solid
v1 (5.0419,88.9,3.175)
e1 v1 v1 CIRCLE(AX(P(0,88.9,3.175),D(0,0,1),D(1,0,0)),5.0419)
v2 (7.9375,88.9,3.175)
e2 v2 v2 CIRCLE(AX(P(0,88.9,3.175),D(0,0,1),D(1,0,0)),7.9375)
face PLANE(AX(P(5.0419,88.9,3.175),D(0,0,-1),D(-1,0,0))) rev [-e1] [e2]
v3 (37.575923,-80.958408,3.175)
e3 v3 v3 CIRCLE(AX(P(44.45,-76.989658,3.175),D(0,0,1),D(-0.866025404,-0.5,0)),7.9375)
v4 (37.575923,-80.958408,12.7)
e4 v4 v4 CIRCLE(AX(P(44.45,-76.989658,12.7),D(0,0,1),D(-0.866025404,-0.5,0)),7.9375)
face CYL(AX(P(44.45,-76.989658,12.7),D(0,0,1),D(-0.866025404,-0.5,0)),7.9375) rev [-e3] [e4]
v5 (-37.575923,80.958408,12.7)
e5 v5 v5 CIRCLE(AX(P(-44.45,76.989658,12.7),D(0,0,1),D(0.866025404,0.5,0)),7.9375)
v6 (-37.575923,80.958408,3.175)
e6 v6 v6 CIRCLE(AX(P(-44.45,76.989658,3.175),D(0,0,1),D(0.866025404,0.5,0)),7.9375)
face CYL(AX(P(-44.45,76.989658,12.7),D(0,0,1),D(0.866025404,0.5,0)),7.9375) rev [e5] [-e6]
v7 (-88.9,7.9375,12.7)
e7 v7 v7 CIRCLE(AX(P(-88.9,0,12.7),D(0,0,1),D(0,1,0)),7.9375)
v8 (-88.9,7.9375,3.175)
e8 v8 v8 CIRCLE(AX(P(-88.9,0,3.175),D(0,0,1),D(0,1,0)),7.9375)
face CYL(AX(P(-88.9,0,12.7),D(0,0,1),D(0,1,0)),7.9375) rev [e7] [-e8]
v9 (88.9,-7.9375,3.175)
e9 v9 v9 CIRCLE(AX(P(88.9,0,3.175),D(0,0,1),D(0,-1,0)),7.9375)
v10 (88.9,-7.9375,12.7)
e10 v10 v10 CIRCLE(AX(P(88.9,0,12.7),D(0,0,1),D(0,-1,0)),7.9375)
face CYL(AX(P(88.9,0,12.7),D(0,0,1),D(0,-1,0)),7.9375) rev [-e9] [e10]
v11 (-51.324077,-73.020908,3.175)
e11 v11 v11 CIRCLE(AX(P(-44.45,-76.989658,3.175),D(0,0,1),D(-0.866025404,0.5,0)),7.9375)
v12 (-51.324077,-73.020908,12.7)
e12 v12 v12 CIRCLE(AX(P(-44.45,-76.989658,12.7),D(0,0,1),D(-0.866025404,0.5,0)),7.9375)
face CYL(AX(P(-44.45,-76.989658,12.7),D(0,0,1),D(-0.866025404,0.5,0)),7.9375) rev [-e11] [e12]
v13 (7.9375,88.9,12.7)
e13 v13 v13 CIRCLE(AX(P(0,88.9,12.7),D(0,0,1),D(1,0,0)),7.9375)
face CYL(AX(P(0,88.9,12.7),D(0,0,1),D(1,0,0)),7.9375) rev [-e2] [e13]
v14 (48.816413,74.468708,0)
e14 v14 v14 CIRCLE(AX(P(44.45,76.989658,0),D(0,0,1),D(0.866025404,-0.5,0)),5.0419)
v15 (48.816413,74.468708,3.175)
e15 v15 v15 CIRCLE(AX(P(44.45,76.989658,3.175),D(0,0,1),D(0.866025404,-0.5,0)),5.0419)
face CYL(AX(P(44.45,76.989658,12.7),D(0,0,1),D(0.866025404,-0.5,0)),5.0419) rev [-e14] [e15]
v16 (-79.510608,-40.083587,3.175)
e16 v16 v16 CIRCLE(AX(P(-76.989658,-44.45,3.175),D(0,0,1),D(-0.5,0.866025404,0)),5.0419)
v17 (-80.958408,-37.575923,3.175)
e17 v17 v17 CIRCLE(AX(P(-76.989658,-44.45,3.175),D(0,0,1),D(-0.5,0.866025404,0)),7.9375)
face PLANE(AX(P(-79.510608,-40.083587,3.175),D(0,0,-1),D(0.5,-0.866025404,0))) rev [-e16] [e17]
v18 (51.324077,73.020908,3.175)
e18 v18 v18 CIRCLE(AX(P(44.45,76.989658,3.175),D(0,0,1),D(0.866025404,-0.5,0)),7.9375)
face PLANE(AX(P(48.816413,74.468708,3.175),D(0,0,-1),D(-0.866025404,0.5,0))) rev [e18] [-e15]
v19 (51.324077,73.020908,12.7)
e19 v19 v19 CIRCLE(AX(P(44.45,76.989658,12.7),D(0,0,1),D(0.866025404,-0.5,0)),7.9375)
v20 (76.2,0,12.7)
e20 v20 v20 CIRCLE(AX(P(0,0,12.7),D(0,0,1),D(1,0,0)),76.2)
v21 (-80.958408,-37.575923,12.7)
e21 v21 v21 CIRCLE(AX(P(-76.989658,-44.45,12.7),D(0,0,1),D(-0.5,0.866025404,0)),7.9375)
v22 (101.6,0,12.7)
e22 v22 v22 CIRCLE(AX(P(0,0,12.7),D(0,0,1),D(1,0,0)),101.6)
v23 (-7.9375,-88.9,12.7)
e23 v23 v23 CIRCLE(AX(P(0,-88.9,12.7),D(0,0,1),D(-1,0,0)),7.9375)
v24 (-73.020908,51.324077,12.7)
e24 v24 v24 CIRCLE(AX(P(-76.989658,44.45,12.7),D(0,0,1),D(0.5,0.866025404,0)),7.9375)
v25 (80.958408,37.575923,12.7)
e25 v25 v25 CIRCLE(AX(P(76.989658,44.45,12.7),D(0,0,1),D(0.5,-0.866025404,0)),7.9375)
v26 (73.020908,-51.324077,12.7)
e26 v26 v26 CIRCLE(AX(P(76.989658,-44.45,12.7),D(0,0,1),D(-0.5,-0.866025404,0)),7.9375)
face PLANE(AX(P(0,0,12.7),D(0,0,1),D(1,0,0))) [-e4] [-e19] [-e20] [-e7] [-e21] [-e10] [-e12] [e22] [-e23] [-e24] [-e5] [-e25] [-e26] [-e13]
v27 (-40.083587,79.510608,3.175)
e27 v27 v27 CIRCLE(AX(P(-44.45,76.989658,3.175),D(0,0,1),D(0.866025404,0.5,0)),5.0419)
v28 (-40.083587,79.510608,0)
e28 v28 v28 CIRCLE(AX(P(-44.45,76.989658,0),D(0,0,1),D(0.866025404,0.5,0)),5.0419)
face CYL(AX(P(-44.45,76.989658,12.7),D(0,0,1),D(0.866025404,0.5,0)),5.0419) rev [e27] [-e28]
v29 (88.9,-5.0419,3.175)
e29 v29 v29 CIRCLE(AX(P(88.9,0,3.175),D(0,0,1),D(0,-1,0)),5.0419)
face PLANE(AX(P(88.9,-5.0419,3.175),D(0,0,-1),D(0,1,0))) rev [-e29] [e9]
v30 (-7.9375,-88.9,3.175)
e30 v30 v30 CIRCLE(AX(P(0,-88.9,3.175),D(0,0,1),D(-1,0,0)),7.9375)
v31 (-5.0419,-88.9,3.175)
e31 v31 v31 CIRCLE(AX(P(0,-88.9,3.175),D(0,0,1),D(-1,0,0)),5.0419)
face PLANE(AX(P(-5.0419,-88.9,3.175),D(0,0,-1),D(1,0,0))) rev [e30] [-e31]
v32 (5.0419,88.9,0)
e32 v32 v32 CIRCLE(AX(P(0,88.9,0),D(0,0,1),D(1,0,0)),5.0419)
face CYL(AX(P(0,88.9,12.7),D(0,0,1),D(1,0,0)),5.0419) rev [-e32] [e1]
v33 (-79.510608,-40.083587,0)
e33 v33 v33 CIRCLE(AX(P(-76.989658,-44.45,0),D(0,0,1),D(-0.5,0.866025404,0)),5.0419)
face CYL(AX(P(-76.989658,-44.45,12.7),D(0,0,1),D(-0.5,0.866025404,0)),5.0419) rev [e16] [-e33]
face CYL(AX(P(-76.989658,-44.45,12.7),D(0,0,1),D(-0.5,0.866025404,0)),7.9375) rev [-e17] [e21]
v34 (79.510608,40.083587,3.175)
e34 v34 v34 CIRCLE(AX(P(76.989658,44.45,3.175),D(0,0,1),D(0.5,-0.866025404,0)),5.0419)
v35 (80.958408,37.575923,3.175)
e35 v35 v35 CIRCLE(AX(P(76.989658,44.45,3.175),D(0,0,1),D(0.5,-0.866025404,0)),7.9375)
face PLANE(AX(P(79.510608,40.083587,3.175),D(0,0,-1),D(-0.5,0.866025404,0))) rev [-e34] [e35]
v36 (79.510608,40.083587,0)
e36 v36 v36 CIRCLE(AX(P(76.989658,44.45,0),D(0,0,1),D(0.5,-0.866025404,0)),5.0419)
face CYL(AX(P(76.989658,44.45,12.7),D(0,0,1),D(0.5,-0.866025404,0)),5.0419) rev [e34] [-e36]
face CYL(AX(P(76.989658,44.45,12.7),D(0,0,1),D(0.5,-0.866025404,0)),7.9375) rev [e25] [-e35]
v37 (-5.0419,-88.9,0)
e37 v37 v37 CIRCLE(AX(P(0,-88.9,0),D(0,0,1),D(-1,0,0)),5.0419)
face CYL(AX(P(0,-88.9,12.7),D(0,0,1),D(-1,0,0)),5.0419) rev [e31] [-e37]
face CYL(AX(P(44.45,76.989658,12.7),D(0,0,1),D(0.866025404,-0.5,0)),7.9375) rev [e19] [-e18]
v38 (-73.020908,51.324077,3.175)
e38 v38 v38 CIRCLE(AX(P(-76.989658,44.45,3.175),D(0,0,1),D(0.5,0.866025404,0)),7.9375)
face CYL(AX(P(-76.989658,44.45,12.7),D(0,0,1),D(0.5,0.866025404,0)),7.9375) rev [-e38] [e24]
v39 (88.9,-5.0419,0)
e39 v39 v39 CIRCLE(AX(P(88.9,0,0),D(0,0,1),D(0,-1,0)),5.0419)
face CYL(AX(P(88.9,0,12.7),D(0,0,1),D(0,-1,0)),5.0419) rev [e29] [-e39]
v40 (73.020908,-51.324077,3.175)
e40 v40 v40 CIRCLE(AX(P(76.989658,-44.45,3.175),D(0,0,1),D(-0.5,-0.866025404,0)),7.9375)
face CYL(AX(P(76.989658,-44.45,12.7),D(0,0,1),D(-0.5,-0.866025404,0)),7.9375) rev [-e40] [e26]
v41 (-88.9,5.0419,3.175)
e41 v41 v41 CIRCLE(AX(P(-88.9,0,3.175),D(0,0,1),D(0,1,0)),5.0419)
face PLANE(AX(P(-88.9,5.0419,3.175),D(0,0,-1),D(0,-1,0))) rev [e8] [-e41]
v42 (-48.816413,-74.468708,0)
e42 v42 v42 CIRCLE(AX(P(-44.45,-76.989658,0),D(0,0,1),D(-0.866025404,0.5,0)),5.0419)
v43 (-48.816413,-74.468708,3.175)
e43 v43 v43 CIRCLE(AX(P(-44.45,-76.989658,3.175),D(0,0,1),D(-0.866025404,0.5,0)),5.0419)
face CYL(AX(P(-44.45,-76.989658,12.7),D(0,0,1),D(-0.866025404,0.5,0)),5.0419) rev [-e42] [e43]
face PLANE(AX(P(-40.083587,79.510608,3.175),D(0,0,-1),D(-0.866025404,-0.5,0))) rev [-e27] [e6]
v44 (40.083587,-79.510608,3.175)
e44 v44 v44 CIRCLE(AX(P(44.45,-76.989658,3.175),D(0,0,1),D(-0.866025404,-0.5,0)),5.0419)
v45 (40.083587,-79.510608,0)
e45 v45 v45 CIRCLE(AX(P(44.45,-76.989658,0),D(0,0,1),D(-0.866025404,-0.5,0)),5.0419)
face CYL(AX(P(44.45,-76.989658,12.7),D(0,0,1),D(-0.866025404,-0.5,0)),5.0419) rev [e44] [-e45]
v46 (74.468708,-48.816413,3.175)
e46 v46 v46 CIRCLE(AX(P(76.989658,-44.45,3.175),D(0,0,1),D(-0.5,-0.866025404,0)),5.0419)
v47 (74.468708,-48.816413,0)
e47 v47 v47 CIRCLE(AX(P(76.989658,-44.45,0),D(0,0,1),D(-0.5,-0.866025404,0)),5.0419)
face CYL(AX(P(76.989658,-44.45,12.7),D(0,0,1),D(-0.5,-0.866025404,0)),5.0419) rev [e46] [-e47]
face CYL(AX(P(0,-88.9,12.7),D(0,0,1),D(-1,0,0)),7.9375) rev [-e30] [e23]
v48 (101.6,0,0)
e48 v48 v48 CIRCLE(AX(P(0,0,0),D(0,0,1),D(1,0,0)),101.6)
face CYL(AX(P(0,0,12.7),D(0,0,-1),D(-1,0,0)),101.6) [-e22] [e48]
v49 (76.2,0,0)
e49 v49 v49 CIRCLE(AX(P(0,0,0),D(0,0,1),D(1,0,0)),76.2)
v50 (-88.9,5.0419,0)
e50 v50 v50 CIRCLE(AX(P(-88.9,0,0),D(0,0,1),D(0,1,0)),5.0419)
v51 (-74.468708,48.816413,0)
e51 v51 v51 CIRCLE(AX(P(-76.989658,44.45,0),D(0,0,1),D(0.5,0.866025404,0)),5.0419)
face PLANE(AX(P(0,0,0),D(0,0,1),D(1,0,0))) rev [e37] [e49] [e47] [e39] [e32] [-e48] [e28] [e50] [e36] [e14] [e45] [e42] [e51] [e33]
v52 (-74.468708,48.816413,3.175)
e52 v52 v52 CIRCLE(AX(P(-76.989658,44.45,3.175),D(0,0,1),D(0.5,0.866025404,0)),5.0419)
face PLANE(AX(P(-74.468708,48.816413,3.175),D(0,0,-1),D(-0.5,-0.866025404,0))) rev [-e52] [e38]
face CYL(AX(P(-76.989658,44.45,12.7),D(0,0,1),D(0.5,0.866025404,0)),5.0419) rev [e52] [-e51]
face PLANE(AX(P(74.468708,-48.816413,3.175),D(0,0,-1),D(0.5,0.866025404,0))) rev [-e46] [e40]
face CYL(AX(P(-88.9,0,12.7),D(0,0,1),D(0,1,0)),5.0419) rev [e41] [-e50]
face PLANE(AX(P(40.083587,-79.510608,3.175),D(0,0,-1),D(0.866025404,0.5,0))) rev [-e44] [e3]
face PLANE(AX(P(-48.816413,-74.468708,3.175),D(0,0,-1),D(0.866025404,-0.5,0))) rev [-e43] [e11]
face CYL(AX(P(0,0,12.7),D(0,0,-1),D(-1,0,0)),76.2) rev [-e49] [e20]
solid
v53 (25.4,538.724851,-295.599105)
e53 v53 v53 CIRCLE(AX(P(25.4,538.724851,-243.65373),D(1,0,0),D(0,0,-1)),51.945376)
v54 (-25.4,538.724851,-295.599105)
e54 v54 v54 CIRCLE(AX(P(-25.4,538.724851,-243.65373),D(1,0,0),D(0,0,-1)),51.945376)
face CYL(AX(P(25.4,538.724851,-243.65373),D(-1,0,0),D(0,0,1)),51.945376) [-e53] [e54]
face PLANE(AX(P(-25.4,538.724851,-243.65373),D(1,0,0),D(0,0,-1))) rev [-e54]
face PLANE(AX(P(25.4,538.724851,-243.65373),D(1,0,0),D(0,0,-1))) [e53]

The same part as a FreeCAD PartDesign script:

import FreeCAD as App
import Part
import Sketcher
from FreeCAD import Vector
Q = App.Units.Quantity

doc = App.newDocument("Part")
body = doc.addObject("PartDesign::Body", "Body")

# Sketch on XY plane
sketch1 = body.newObject("Sketcher::SketchObject", "Sketch")
sketch1.AttachmentSupport = (doc.getObject("XY_Plane"), [""])
sketch1.MapMode = "FlatFace"
sketch1.addGeometry(Part.Circle(Vector(0, 0, 0), Vector(0, 0, 1), 101.6), False)
sketch1.addGeometry(Part.Circle(Vector(0, 0, 0), Vector(0, 0, 1), 76.2), False)
sketch1.addConstraint(Sketcher.Constraint("Coincident", 0, 3, -1, 1))
sketch1.addConstraint(Sketcher.Constraint("Coincident", 1, 3, -1, 1))
sketch1.addConstraint(Sketcher.Constraint("Diameter", 0, Q("8 in")))
sketch1.addConstraint(Sketcher.Constraint("Diameter", 1, Q("6 in")))
pad1 = body.newObject("PartDesign::Pad", "Pad")
pad1.Profile = sketch1
pad1.Length = Q("0.5 in")

# Sketch on XY plane
sketch2 = body.newObject("Sketcher::SketchObject", "Sketch001")
sketch2.AttachmentSupport = (doc.getObject("XY_Plane"), [""])
sketch2.MapMode = "FlatFace"
sketch2.AttachmentOffset = App.Placement(Vector(0, 0, 0.5 * 25.4), App.Rotation())
sketch2.addGeometry(Part.Circle(Vector(0, 88.9, 0), Vector(0, 0, 1), 5.0419), False)
sketch2.addConstraint(Sketcher.Constraint("PointOnObject", 0, 3, -2))
sketch2.addConstraint(Sketcher.Constraint("Diameter", 0, Q("0.397 in")))
sketch2.addConstraint(Sketcher.Constraint("DistanceY", -1, 1, 0, 3, Q("3.5 in")))
doc.recompute()
hole = body.newObject("PartDesign::Hole", "Hole")
hole.Profile = sketch2
hole.ThreadType = "None"
hole.Diameter = Q("0.397 in")
hole.DepthType = "ThroughAll"
hole.HoleCutType = "Counterbore"
hole.HoleCutDiameter = Q("0.625 in")
hole.HoleCutDepth = Q("0.375 in")
doc.recompute()

polarpattern = body.newObject("PartDesign::PolarPattern", "PolarPattern")
polarpattern.Originals = [hole]
polarpattern.Axis = (doc.getObject("Z_Axis"), [""])
polarpattern.Angle = 360
polarpattern.Occurrences = 12
body.Tip = polarpattern
body2 = doc.addObject("PartDesign::Body", "Body001")

# Sketch on YZ plane
sketch3 = body2.newObject("Sketcher::SketchObject", "Sketch002")
sketch3.AttachmentSupport = (doc.getObject("YZ_Plane001"), [""])
sketch3.MapMode = "FlatFace"
sketch3.addGeometry(Part.Circle(Vector(538.724851, -243.65373, 0), Vector(0, 0, 1), 51.945376), False)
sketch3.addConstraint(Sketcher.Constraint("Diameter", 0, Q("103.890752 mm")))
sketch3.addConstraint(Sketcher.Constraint("DistanceX", -1, 1, 0, 3, Q("538.724851 mm")))
sketch3.addConstraint(Sketcher.Constraint("DistanceY", 0, 3, -1, 1, Q("243.65373 mm")))
pad2 = body2.newObject("PartDesign::Pad", "Pad001")
pad2.Profile = sketch3
pad2.Length = Q("2 in")
pad2.Midplane = True

doc.recompute()
